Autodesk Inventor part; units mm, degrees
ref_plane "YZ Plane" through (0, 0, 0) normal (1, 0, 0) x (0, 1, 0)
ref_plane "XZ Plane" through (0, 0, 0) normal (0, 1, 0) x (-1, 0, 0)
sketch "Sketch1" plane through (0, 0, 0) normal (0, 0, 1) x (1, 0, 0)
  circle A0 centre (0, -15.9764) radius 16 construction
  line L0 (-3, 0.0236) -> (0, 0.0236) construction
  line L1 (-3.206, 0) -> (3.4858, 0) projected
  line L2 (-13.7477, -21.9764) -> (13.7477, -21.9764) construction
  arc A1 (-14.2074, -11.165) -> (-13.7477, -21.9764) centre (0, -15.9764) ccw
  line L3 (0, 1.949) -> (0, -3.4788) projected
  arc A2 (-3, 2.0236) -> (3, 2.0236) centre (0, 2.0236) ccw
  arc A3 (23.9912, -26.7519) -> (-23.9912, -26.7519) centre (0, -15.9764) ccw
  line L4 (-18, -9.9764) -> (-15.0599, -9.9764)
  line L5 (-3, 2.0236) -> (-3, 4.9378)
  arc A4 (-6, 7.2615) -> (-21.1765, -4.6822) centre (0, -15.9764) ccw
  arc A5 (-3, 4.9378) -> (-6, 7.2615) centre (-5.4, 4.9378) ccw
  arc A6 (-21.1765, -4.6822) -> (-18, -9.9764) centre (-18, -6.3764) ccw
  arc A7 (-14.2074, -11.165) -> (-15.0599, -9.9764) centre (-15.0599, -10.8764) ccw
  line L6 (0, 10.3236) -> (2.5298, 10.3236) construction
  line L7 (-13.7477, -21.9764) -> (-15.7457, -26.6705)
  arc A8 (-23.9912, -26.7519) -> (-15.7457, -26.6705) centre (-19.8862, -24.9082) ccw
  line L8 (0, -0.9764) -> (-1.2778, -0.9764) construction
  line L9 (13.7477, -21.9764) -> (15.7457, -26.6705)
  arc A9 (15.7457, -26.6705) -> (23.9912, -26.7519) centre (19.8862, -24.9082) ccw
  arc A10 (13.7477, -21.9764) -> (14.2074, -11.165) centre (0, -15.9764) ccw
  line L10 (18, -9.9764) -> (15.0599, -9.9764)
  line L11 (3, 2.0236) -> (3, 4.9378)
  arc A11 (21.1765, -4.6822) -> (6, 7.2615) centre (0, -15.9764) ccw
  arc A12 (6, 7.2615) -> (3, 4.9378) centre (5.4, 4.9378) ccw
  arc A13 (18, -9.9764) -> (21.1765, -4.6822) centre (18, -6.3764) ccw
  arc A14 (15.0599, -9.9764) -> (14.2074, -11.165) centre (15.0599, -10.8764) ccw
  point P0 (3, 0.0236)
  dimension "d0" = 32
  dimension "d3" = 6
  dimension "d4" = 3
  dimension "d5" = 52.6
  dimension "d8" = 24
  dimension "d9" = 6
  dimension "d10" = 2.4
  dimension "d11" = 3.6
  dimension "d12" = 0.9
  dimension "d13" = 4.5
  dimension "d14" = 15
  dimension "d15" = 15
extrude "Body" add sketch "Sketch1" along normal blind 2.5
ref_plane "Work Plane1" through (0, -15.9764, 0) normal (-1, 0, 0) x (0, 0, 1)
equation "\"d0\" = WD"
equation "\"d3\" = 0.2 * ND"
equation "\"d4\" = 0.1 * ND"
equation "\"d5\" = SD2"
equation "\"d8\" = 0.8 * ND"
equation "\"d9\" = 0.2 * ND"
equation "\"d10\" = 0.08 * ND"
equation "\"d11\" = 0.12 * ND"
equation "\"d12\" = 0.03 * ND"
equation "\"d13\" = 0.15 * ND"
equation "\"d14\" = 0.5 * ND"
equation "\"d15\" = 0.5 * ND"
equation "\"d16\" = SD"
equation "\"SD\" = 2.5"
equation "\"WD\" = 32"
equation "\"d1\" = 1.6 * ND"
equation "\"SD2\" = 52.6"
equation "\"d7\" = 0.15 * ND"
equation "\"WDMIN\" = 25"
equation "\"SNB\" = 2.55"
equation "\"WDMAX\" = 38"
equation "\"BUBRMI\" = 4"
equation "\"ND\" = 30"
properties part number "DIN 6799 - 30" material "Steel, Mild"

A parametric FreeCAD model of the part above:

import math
import FreeCAD as App
import Part
import Sketcher

V = App.Vector
Q = App.Units.Quantity

doc = App.newDocument("Part")
body = doc.addObject("PartDesign::Body", "Body")

# Sketch on XY plane
sketch1 = body.newObject("Sketcher::SketchObject", "Sketch")
sketch1.AttachmentSupport = (doc.getObject("XY_Plane"), [""])
sketch1.MapMode = "FlatFace"
sketch1.addGeometry([
    Part.ArcOfCircle(Part.Circle(V(0, 2, 0), V(0, 0, 1), 3), math.radians(180), math.radians(360)),  # 0
    Part.LineSegment(V(3, 2, 0), V(3, 4.9, 0)),  # 1
    Part.ArcOfCircle(Part.Circle(V(5.4, 4.9, 0), V(0, 0, 1), 2.4), math.radians(76), math.radians(180)),  # 2
    Part.ArcOfCircle(Part.Circle(V(0, -16, 0), V(0, 0, 1), 24), math.radians(28), math.radians(76)),  # 3
    Part.ArcOfCircle(Part.Circle(V(18, -6.4, 0), V(0, 0, 1), 3.6), math.radians(-90), math.radians(28)),  # 4
    Part.LineSegment(V(18, -10, 0), V(15.1, -10, 0)),  # 5
    Part.ArcOfCircle(Part.Circle(V(15.1, -10.9, 0), V(0, 0, 1), 0.9), math.radians(90), math.radians(199)),  # 6
    Part.ArcOfCircle(Part.Circle(V(0, -16, 0), V(0, 0, 1), 15), math.radians(-24), math.radians(19)),  # 7
    Part.LineSegment(V(13.7, -22, 0), V(15.7, -26.7, 0)),  # 8
    Part.ArcOfCircle(Part.Circle(V(19.9, -24.9, 0), V(0, 0, 1), 4.5), math.radians(-157), math.radians(-24)),  # 9
    Part.ArcOfCircle(Part.Circle(V(0, -16, 0), V(0, 0, 1), 26.3), math.radians(-24), math.radians(204)),  # 10
    Part.ArcOfCircle(Part.Circle(V(-19.9, -24.9, 0), V(0, 0, 1), 4.5), math.radians(-156), math.radians(-23)),  # 11
    Part.LineSegment(V(-15.7, -26.7, 0), V(-13.7, -22, 0)),  # 12
    Part.ArcOfCircle(Part.Circle(V(0, -16, 0), V(0, 0, 1), 15), math.radians(161), math.radians(204)),  # 13
    Part.ArcOfCircle(Part.Circle(V(-15.1, -10.9, 0), V(0, 0, 1), 0.9), math.radians(-19), math.radians(90)),  # 14
    Part.LineSegment(V(-15.1, -10, 0), V(-18, -10, 0)),  # 15
    Part.ArcOfCircle(Part.Circle(V(-18, -6.4, 0), V(0, 0, 1), 3.6), math.radians(152), math.radians(270)),  # 16
    Part.ArcOfCircle(Part.Circle(V(0, -16, 0), V(0, 0, 1), 24), math.radians(104), math.radians(152)),  # 17
    Part.ArcOfCircle(Part.Circle(V(-5.4, 4.9, 0), V(0, 0, 1), 2.4), math.radians(0), math.radians(104)),  # 18
    Part.LineSegment(V(-3, 4.9, 0), V(-3, 2, 0)),  # 19
], False)
sketch1.addConstraint([
    Sketcher.Constraint("Tangent", 0, 2, 1, 1),
    Sketcher.Constraint("Tangent", 1, 2, 2, 2),
    Sketcher.Constraint("Tangent", 2, 1, 3, 2),
    Sketcher.Constraint("Tangent", 3, 1, 4, 2),
    Sketcher.Constraint("Tangent", 4, 1, 5, 1),
    Sketcher.Constraint("Tangent", 5, 2, 6, 1),
    Sketcher.Constraint("Tangent", 6, 2, 7, 2),
    Sketcher.Constraint("Coincident", 7, 1, 8, 1),
    Sketcher.Constraint("Tangent", 8, 2, 9, 1),
    Sketcher.Constraint("Tangent", 9, 2, 10, 1),
    Sketcher.Constraint("Tangent", 10, 2, 11, 1),
    Sketcher.Constraint("Tangent", 11, 2, 12, 1),
    Sketcher.Constraint("Coincident", 12, 2, 13, 2),
    Sketcher.Constraint("Tangent", 13, 1, 14, 1),
    Sketcher.Constraint("Tangent", 14, 2, 15, 1),
    Sketcher.Constraint("Tangent", 15, 2, 16, 2),
    Sketcher.Constraint("Tangent", 16, 1, 17, 2),
    Sketcher.Constraint("Tangent", 17, 1, 18, 2),
    Sketcher.Constraint("Tangent", 18, 1, 19, 1),
    Sketcher.Constraint("Tangent", 19, 2, 0, 1),
    Sketcher.Constraint("Vertical", 1),
    Sketcher.Constraint("Horizontal", 5),
    Sketcher.Constraint("Horizontal", 15),
    Sketcher.Constraint("Vertical", 19),
    Sketcher.Constraint("Coincident", 7, 3, 3, 3),
    Sketcher.Constraint("Coincident", 10, 3, 3, 3),
    Sketcher.Constraint("Coincident", 13, 3, 3, 3),
    Sketcher.Constraint("Coincident", 17, 3, 3, 3),
    Sketcher.Constraint("Equal", 9, 11),
    Sketcher.Constraint("Equal", 7, 13),
    Sketcher.Constraint("Equal", 6, 14),
    Sketcher.Constraint("Equal", 4, 16),
    Sketcher.Constraint("Equal", 3, 17),
    Sketcher.Constraint("Equal", 2, 18),
    Sketcher.Constraint("Symmetric", 9, 3, 11, 3, -2),
    Sketcher.Constraint("PointOnObject", 0, 3, -2),
    Sketcher.Constraint("Horizontal", 6, 3, 14, 3),
    Sketcher.Constraint("Horizontal", 8, 2, 11, 2),
    Sketcher.Constraint("Radius", 0, Q("3 mm")),
    Sketcher.Constraint("Radius", 3, Q("24 mm")),
    Sketcher.Constraint("Radius", 7, Q("15 mm")),
    Sketcher.Constraint("Radius", 2, Q("2.4 mm")),
    Sketcher.Constraint("Radius", 4, Q("3.6 mm")),
    Sketcher.Constraint("Radius", 6, Q("0.9 mm")),
    Sketcher.Constraint("Radius", 9, Q("4.5 mm")),
    Sketcher.Constraint("Radius", 10, Q("26.3 mm")),
    Sketcher.Constraint("DistanceX", 0, 2, 4, 3, Q("15 mm")),
    Sketcher.Constraint("DistanceY", 12, 2, 3, 3, Q("6 mm")),
    Sketcher.Constraint("DistanceY", 3, 3, 0, 3, Q("18 mm")),
    Sketcher.Constraint("DistanceY", 6, 2, -1, 1, Q("11.165 mm")),
    Sketcher.Constraint("DistanceX", -1, 1, 9, 2, Q("23.991 mm")),
])
pad1 = body.newObject("PartDesign::Pad", "Pad")
pad1.Profile = sketch1
pad1.Length = 2.5

doc.recompute()
